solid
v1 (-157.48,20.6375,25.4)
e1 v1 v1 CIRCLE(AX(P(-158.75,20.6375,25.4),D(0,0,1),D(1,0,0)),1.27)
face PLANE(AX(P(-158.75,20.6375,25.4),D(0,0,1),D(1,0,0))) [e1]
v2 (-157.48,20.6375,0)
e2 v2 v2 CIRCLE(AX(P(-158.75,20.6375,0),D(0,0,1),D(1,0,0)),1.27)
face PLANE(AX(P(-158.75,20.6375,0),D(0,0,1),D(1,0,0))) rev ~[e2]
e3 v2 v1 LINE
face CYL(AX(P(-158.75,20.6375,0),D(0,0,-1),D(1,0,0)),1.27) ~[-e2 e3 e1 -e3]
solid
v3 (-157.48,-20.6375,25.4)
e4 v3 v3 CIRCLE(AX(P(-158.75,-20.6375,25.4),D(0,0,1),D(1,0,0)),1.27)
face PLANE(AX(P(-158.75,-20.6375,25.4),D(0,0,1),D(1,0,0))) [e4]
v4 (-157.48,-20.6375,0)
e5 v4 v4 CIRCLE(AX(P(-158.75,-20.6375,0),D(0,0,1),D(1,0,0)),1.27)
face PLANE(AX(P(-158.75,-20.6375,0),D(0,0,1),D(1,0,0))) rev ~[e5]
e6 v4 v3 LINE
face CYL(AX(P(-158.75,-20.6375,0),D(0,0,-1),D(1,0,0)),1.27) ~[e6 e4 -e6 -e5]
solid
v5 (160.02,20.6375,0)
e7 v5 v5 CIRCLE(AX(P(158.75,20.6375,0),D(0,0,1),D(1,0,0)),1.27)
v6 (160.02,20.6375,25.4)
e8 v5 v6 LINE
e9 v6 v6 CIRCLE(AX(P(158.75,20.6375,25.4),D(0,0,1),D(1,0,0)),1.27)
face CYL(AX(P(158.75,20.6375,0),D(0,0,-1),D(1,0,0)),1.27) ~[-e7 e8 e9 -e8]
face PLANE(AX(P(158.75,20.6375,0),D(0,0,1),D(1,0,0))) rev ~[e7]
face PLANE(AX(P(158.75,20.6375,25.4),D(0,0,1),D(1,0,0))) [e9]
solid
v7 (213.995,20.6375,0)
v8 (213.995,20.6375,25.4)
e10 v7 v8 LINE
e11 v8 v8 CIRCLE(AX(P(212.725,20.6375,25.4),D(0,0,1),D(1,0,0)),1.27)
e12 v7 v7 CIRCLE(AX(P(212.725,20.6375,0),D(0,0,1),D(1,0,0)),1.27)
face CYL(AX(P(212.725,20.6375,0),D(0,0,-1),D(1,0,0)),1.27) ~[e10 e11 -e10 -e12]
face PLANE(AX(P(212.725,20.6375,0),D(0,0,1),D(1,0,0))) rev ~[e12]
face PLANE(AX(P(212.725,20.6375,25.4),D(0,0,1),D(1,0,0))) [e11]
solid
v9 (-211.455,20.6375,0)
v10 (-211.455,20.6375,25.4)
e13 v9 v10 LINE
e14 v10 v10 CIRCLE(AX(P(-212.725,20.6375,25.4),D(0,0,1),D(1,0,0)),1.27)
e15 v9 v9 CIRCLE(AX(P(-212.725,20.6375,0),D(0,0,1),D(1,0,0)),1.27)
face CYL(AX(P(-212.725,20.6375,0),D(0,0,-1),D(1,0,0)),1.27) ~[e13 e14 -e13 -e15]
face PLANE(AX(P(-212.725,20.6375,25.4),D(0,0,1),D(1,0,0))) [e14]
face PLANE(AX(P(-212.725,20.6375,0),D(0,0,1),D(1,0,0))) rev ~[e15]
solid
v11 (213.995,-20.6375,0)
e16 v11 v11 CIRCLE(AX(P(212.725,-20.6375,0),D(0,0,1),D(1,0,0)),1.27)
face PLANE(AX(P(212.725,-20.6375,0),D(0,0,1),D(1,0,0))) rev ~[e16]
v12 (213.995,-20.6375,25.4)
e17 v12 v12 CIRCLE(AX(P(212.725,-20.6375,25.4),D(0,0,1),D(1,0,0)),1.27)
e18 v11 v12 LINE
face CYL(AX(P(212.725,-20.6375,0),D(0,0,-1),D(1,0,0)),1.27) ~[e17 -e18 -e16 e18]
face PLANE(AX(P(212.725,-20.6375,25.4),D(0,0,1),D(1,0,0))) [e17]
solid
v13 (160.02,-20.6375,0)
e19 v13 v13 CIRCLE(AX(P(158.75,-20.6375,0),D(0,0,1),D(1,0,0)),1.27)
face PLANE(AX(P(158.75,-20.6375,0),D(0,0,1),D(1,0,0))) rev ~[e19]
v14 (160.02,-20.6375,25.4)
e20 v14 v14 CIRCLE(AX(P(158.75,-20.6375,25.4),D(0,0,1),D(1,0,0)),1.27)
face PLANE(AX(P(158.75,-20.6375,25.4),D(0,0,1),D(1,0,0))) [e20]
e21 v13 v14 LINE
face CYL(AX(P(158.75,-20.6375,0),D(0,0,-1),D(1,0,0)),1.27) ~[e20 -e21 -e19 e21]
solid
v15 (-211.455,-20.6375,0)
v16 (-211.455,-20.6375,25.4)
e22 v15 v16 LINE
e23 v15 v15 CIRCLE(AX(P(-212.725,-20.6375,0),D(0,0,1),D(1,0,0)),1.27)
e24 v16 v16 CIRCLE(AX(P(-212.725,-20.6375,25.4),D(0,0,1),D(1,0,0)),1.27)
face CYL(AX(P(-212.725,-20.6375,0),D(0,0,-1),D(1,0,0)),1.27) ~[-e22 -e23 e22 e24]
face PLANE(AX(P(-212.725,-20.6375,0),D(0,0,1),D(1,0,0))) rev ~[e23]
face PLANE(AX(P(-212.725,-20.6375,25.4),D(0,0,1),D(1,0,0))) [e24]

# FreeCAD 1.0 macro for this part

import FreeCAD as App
import Part
import Sketcher

V = App.Vector
Q = App.Units.Quantity

doc = App.newDocument("Part")
params = doc.addObject("Spreadsheet::Sheet", "Params")
for row, (alias, value) in enumerate([
    ("sketch1_diameter", "0.1 in"),
    ("pad1_length", "1 in"),
], start=1):
    params.set(f"A{row}", alias)
    params.set(f"B{row}", "=" + value)
    params.setAlias(f"B{row}", alias)

body = doc.addObject("PartDesign::Body", "Body")
body.AllowCompound = True

# Sketch on XY plane
sketch1 = doc.addObject("Sketcher::SketchObject", "Sketch")
body.addObject(sketch1)
sketch1.AttachmentSupport = (doc.XY_Plane, [""])
sketch1.MapMode = "FlatFace"
sketch1.addGeometry([
    Part.Circle(V(158.8, 20.6, 0), V(0, 0, 1), 1.3),  # 0
    Part.Circle(V(-158.8, -20.6, 0), V(0, 0, 1), 1.3),  # 1
    Part.Circle(V(212.7, -20.6, 0), V(0, 0, 1), 1.3),  # 2
    Part.Circle(V(212.7, 20.6, 0), V(0, 0, 1), 1.3),  # 3
    Part.Circle(V(-158.8, 20.6, 0), V(0, 0, 1), 1.3),  # 4
    Part.Circle(V(158.8, -20.6, 0), V(0, 0, 1), 1.3),  # 5
    Part.Circle(V(-212.7, -20.6, 0), V(0, 0, 1), 1.3),  # 6
    Part.Circle(V(-212.7, 20.6, 0), V(0, 0, 1), 1.3),  # 7
], False)
sketch1.addConstraint([
    Sketcher.Constraint("Equal", 0, 1),
    Sketcher.Constraint("Equal", 1, 2),
    Sketcher.Constraint("Equal", 2, 3),
    Sketcher.Constraint("Equal", 3, 4),
    Sketcher.Constraint("Equal", 4, 5),
    Sketcher.Constraint("Equal", 5, 6),
    Sketcher.Constraint("Equal", 6, 7),
    Sketcher.Constraint("Symmetric", 0, 3, 1, 3, -1, 1),
    Sketcher.Constraint("Symmetric", 4, 3, 5, 3, -1, 1),
    Sketcher.Constraint("Symmetric", 3, 3, 6, 3, -1, 1),
    Sketcher.Constraint("Symmetric", 2, 3, 7, 3, -1, 1),
    Sketcher.Constraint("Symmetric", 0, 3, 4, 3, -2),
    Sketcher.Constraint("Symmetric", 2, 3, 6, 3, -2),
    Sketcher.Constraint("Horizontal", 1, 3, 2, 3),
    Sketcher.Constraint("Diameter", 0, Q("0.1 in")),
    Sketcher.Constraint("DistanceX", 1, 3, 0, 3, Q("12.5 in")),
    Sketcher.Constraint("DistanceX", 6, 3, 2, 3, Q("16.75 in")),
    Sketcher.Constraint("DistanceY", -1, 1, 0, 3, Q("0.8125 in")),
])
sketch1.setExpression("Constraints[14]", "Params.sketch1_diameter")
pad1 = doc.addObject("PartDesign::Pad", "Pad")
body.addObject(pad1)
pad1.Profile = sketch1
pad1.setExpression("Length", "Params.pad1_length")

doc.recompute()
